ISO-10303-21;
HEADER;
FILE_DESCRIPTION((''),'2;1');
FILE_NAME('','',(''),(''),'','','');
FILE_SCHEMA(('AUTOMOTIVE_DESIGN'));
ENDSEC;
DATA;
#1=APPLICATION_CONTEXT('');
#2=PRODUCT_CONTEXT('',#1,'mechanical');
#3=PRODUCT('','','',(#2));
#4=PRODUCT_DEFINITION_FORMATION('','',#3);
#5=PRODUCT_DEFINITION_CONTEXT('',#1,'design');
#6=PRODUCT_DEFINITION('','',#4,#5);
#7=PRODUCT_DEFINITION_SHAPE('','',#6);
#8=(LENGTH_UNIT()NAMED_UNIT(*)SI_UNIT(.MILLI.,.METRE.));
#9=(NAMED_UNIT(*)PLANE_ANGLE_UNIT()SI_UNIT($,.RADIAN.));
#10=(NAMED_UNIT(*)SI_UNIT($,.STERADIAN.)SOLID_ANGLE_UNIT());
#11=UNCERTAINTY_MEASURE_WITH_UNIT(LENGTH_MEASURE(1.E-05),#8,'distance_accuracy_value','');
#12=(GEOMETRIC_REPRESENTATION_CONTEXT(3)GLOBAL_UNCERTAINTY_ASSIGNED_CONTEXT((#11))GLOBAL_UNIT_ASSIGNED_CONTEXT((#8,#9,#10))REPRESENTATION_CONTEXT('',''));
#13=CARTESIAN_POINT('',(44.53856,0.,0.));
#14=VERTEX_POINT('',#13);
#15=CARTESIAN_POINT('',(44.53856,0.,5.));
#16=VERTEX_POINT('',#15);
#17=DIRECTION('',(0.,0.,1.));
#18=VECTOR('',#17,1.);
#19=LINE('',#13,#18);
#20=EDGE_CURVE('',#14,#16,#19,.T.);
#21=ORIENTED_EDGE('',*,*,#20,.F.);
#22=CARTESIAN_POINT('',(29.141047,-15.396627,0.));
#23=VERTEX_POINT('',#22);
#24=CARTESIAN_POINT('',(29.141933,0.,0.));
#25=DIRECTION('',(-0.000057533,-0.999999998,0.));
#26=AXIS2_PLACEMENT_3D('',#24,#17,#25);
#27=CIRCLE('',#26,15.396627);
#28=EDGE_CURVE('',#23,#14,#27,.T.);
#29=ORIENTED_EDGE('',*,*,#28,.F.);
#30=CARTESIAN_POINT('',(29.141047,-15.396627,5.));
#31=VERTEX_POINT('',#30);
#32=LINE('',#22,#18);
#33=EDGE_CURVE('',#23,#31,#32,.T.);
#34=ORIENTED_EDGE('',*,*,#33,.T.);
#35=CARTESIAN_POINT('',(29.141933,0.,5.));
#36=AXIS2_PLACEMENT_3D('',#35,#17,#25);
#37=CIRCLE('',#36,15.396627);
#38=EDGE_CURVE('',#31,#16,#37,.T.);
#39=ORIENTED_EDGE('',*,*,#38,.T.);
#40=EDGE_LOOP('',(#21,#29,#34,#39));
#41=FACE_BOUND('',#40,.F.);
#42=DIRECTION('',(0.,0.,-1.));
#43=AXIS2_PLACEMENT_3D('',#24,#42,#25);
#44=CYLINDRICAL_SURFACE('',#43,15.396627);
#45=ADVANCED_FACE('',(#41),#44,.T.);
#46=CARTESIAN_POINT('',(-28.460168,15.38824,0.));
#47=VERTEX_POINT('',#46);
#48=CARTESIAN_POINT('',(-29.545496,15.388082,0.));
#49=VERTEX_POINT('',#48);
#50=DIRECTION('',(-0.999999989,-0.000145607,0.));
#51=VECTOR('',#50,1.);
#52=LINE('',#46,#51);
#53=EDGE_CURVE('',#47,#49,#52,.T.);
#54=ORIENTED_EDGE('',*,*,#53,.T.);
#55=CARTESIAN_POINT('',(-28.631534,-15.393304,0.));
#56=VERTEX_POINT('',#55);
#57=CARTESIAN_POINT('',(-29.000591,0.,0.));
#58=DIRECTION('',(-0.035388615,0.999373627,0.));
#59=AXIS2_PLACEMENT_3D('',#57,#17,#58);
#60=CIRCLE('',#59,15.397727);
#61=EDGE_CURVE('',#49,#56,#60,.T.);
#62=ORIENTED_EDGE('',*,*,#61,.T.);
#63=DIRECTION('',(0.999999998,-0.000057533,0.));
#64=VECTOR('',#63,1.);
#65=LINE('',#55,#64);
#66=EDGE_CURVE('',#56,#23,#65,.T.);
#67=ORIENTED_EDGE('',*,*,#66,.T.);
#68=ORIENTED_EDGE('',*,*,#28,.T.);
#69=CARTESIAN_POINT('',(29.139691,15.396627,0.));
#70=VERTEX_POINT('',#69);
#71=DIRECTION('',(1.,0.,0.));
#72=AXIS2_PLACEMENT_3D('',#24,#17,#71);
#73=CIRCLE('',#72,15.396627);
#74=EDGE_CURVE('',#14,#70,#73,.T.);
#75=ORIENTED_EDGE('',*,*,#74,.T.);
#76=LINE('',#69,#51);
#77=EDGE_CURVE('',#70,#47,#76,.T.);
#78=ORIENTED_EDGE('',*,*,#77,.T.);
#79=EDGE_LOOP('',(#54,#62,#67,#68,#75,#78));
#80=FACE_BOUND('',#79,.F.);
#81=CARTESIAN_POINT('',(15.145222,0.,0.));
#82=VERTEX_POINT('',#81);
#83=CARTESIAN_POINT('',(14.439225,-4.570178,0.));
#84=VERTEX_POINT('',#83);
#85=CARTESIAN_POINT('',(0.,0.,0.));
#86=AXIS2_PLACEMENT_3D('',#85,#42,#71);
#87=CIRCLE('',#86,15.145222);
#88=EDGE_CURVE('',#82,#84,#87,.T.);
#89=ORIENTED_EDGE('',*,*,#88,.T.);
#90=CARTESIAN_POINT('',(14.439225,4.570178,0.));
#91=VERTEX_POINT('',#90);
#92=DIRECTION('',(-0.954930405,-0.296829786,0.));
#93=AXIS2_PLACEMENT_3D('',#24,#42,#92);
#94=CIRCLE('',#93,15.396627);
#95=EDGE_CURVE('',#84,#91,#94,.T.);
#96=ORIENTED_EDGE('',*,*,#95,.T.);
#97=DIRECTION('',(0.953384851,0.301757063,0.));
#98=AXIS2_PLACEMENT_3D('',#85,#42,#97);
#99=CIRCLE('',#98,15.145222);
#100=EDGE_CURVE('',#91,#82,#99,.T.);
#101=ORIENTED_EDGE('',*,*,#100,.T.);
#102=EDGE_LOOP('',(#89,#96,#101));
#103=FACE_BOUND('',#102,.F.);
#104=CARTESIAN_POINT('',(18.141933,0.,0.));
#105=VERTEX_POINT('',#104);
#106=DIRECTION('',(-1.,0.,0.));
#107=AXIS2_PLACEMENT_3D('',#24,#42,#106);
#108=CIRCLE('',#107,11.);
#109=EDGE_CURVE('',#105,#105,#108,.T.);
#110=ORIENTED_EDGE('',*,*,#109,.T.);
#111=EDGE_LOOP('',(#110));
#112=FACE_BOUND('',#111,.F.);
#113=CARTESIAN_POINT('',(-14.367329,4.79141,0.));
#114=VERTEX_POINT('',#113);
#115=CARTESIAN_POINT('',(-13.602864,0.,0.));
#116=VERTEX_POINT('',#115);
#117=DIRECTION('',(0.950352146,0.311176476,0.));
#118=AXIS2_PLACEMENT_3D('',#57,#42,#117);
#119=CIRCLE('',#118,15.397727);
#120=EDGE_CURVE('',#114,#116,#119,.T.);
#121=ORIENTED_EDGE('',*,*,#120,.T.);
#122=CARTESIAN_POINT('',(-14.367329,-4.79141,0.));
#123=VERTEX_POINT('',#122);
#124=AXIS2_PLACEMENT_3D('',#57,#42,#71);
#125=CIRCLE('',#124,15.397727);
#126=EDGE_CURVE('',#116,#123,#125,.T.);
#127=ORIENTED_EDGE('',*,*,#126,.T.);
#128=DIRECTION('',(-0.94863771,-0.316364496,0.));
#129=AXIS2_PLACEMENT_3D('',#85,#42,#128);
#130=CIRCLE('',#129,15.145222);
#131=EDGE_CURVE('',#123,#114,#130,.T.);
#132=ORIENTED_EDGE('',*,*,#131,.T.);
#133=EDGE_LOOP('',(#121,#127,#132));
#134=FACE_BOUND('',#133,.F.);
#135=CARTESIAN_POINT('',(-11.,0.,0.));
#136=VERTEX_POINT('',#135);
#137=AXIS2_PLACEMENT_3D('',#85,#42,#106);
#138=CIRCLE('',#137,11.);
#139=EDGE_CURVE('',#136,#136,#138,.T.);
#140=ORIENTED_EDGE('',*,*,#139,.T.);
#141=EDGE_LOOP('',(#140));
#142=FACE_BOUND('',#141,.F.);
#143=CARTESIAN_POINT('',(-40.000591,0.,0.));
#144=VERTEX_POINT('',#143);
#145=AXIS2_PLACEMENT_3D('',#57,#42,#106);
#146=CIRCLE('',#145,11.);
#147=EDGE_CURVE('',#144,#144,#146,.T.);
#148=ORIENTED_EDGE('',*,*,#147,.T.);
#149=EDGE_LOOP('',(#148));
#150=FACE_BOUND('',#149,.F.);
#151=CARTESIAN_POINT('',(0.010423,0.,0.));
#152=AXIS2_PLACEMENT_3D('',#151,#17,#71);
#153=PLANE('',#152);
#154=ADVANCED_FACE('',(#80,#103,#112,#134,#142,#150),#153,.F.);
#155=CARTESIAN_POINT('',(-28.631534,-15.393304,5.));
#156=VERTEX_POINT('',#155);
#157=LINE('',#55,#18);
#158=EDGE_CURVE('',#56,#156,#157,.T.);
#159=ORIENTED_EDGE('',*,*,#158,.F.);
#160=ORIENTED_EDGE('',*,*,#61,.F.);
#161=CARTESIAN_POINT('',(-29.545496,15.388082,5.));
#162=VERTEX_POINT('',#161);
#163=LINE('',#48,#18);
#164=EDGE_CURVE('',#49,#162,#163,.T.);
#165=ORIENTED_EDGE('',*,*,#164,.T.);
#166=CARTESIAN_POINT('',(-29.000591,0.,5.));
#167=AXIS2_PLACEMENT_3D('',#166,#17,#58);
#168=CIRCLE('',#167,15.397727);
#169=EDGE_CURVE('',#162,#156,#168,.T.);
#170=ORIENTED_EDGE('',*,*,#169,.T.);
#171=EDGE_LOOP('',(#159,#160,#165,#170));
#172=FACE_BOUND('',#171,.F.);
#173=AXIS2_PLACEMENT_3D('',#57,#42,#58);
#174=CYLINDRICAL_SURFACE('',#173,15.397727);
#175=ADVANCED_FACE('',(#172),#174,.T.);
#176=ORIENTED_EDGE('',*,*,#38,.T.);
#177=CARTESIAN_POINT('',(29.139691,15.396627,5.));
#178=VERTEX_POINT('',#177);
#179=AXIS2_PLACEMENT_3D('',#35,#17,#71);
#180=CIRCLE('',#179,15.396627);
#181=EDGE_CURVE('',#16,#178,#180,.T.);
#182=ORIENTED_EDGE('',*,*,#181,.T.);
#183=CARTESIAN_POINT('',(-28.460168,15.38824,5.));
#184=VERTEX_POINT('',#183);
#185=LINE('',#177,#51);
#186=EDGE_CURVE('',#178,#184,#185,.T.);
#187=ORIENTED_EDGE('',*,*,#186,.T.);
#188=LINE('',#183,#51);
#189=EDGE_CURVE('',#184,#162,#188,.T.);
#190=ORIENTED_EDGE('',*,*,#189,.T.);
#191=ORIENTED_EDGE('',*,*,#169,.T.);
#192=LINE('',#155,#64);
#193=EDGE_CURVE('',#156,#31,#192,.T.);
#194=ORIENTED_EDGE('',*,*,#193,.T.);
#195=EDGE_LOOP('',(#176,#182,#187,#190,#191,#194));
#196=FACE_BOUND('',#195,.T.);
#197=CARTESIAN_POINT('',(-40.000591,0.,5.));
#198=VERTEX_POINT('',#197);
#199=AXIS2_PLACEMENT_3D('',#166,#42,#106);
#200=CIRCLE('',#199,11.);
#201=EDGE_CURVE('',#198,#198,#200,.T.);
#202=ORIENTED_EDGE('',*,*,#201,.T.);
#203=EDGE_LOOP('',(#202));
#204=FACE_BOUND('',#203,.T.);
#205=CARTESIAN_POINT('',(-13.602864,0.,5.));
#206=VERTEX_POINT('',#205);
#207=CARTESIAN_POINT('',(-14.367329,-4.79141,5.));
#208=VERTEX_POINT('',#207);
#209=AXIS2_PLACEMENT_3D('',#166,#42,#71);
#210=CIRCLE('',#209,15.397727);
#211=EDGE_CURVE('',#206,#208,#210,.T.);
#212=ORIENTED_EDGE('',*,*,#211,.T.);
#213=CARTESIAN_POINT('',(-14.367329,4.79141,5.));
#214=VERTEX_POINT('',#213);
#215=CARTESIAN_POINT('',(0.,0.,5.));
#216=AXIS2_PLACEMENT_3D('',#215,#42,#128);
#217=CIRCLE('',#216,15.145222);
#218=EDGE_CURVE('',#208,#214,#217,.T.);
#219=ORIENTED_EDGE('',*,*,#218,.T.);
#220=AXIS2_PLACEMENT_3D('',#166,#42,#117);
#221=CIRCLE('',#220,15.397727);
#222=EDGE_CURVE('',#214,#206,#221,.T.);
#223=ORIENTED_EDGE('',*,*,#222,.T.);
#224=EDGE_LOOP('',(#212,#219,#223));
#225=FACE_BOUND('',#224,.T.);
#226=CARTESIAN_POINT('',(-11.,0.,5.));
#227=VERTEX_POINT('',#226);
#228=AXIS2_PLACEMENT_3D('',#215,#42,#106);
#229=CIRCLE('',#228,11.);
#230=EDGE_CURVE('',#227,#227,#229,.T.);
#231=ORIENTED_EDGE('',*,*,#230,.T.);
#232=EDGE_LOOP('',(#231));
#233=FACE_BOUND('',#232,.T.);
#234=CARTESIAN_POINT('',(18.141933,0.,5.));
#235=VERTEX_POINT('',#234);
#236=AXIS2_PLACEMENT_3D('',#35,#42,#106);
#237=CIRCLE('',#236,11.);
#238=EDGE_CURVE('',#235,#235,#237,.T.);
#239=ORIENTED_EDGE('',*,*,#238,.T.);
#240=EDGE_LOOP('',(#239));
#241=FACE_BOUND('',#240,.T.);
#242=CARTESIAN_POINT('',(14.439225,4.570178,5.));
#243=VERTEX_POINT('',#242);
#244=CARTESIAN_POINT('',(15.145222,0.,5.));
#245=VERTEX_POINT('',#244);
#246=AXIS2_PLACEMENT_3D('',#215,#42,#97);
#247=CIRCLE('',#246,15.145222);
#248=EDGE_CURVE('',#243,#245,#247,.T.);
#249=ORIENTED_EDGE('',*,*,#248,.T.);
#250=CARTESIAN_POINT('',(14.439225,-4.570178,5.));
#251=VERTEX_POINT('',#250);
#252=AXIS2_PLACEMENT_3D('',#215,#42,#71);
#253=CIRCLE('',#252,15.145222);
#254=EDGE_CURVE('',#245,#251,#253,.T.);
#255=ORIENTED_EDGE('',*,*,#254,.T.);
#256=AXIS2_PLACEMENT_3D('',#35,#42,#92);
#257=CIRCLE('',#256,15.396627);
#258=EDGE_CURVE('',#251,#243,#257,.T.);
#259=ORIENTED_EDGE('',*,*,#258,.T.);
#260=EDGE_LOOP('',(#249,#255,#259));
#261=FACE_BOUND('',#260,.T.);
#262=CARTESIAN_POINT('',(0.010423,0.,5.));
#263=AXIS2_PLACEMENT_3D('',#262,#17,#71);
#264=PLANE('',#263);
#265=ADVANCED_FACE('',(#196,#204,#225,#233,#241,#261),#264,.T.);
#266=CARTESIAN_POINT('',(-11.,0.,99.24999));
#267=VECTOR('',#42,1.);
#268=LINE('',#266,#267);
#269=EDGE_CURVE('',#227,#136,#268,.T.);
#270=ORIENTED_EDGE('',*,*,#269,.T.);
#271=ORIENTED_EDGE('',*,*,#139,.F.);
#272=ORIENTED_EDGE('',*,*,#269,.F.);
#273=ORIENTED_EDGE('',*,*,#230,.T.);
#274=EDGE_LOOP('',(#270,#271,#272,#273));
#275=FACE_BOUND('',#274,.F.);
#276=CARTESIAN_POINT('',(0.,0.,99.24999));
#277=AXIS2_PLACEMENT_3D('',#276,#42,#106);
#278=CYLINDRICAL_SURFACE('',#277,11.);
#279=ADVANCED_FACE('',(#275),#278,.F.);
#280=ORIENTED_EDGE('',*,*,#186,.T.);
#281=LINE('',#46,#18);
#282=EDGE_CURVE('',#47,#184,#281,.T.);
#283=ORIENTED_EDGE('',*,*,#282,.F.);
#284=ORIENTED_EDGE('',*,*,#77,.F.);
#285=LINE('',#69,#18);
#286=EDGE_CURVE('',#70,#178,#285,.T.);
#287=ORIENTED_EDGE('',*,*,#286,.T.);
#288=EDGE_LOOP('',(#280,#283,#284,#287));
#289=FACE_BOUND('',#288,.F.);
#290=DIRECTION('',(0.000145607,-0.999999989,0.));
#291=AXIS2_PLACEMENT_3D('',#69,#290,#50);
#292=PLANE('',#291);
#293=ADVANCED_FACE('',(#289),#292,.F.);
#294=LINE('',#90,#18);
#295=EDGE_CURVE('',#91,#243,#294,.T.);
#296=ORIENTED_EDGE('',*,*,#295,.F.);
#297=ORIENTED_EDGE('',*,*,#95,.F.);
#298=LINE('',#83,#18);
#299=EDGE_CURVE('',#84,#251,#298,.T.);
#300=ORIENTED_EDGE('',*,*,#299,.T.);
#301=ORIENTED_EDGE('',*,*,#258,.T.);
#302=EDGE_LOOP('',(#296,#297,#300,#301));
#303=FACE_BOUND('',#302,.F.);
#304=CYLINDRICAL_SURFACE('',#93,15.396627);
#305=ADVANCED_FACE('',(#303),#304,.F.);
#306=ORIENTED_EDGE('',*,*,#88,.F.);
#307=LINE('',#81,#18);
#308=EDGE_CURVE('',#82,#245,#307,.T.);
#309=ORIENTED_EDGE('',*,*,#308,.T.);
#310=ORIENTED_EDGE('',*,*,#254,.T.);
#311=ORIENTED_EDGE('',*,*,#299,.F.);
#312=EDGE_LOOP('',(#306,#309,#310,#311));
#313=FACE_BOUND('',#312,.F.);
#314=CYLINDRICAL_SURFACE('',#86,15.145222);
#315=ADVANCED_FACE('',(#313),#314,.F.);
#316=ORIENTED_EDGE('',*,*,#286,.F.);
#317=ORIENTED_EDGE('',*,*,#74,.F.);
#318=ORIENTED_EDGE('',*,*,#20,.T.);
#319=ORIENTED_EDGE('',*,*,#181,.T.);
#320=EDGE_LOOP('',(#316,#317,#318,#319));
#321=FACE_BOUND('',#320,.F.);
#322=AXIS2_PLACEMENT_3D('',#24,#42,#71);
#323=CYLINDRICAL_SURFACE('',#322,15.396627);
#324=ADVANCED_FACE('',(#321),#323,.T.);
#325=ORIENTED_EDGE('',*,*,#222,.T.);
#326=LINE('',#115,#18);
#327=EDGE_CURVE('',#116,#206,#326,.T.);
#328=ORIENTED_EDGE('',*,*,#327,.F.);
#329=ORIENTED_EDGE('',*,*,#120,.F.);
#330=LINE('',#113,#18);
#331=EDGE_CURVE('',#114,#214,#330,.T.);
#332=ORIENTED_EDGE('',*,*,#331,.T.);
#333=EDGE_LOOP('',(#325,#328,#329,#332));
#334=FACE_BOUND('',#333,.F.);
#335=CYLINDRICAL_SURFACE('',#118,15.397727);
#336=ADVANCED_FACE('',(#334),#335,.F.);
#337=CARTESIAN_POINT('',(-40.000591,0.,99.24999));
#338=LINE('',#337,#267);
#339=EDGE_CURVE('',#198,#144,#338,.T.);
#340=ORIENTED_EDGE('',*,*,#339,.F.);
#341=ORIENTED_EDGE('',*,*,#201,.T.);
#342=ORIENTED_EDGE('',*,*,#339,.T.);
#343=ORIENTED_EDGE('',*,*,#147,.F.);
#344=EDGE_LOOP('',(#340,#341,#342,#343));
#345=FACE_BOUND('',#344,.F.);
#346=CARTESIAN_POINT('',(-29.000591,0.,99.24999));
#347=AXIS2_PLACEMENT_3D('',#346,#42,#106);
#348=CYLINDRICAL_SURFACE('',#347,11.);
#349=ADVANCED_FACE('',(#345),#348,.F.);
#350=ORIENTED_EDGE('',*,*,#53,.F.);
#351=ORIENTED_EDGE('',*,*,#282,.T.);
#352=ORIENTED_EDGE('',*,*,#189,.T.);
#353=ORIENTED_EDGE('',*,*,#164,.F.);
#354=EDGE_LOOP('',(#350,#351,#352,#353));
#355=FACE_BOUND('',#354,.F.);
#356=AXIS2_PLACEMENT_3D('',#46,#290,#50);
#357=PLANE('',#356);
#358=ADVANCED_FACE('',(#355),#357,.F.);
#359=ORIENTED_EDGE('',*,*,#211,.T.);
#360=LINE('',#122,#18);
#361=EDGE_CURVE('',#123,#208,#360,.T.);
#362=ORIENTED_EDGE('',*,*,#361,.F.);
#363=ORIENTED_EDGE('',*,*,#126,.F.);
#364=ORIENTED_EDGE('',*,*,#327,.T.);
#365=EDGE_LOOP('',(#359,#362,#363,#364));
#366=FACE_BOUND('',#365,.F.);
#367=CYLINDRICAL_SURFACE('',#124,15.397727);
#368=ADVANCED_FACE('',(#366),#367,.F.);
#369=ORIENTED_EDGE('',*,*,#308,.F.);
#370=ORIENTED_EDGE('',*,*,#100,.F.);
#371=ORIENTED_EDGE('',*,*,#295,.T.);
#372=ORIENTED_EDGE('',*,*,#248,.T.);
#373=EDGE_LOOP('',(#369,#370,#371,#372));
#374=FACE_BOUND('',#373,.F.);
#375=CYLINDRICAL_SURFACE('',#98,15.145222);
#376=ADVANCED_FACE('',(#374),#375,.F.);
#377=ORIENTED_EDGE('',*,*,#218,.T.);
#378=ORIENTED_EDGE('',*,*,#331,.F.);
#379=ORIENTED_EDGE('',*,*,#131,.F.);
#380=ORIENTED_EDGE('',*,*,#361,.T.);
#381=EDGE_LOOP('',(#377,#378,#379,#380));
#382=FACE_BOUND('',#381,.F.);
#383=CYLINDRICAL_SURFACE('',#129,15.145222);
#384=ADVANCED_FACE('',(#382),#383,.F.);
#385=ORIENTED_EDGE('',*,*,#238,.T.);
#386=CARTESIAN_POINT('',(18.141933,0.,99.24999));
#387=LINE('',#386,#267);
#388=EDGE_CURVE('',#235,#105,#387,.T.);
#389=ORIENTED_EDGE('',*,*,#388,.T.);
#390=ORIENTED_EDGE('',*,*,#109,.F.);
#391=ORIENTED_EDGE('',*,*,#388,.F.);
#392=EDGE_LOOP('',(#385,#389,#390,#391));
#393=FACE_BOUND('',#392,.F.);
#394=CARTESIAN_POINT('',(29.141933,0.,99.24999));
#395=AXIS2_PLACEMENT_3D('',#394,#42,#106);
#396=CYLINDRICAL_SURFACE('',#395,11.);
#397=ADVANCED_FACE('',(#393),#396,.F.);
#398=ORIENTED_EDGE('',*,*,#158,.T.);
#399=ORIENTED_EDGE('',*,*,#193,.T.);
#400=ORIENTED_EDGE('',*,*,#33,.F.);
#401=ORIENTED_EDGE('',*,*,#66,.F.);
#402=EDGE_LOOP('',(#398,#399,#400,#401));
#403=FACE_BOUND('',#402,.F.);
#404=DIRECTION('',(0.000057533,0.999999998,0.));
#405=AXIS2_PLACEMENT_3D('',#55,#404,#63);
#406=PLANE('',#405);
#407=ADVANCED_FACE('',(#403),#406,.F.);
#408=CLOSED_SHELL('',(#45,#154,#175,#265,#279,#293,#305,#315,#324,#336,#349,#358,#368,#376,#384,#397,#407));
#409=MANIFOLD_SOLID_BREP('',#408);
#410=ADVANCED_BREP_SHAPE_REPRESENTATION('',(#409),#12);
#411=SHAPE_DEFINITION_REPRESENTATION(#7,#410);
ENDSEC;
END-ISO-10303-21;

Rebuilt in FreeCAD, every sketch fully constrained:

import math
import FreeCAD as App
import Part
import Sketcher
from FreeCAD import Vector
Q = App.Units.Quantity

doc = App.newDocument("Part")
body = doc.addObject("PartDesign::Body", "Body")

sketch1 = body.newObject("Sketcher::SketchObject", "Sketch")
sketch1.AttachmentSupport = (doc.getObject("XY_Plane"), [""])
sketch1.MapMode = "FlatFace"
sketch1.addGeometry([
    Part.LineSegment(Vector(29.1, 15.4, 0), Vector(-28.5, 15.4, 0)),
    Part.LineSegment(Vector(-28.5, 15.4, 0), Vector(-29.5, 15.4, 0)),
    Part.ArcOfCircle(Part.Circle(Vector(-29, 0, 0), Vector(0, 0, 1), 15.4), math.radians(92), math.radians(271)),
    Part.LineSegment(Vector(-28.6, -15.4, 0), Vector(29.1, -15.4, 0)),
    Part.ArcOfCircle(Part.Circle(Vector(29.1, 0, 0), Vector(0, 0, 1), 15.4), math.radians(-90), math.radians(0)),
    Part.ArcOfCircle(Part.Circle(Vector(29.1, 0, 0), Vector(0, 0, 1), 15.4), math.radians(0), math.radians(90)),
    Part.ArcOfCircle(Part.Circle(Vector(29.1, 0, 0), Vector(0, 0, 1), 15.4), math.radians(163), math.radians(197)),
    Part.ArcOfCircle(Part.Circle(Vector(0, 0, 0), Vector(0, 0, 1), 15.1), math.radians(0), math.radians(17.56)),
    Part.ArcOfCircle(Part.Circle(Vector(0, 0, 0), Vector(0, 0, 1), 15.1), math.radians(-17.56), math.radians(0)),
    Part.ArcOfCircle(Part.Circle(Vector(0, 0, 0), Vector(0, 0, 1), 15.1), math.radians(162), math.radians(198)),
    Part.ArcOfCircle(Part.Circle(Vector(-29, 0, 0), Vector(0, 0, 1), 15.4), math.radians(0), math.radians(18.13)),
    Part.ArcOfCircle(Part.Circle(Vector(-29, 0, 0), Vector(0, 0, 1), 15.4), math.radians(-18.13), math.radians(0)),
], False)
sketch1.addConstraint([
    Sketcher.Constraint("Coincident", 0, 2, 1, 1),
    Sketcher.Constraint("Coincident", 1, 2, 2, 1),
    Sketcher.Constraint("Coincident", 2, 2, 3, 1),
    Sketcher.Constraint("Tangent", 3, 2, 4, 1),
    Sketcher.Constraint("Tangent", 4, 2, 5, 1),
    Sketcher.Constraint("Tangent", 5, 2, 0, 1),
    Sketcher.Constraint("Coincident", 6, 1, 7, 2),
    Sketcher.Constraint("Tangent", 7, 1, 8, 2),
    Sketcher.Constraint("Coincident", 8, 1, 6, 2),
    Sketcher.Constraint("Coincident", 9, 1, 10, 2),
    Sketcher.Constraint("Tangent", 10, 1, 11, 2),
    Sketcher.Constraint("Coincident", 11, 1, 9, 2),
    Sketcher.Constraint("Coincident", 7, 3, -1, 1),
    Sketcher.Constraint("Coincident", 9, 3, -1, 1),
    Sketcher.Constraint("Coincident", 6, 3, 4, 3),
    Sketcher.Constraint("Coincident", 10, 3, 2, 3),
    Sketcher.Constraint("Equal", 4, 5),
    Sketcher.Constraint("Equal", 5, 6),
    Sketcher.Constraint("Equal", 7, 8),
    Sketcher.Constraint("Equal", 8, 9),
    Sketcher.Constraint("Equal", 2, 10),
    Sketcher.Constraint("Equal", 10, 11),
    Sketcher.Constraint("PointOnObject", 2, 3, -1),
    Sketcher.Constraint("PointOnObject", 4, 3, -1),
    Sketcher.Constraint("PointOnObject", 4, 2, -1),
    Sketcher.Constraint("PointOnObject", 7, 1, -1),
    Sketcher.Constraint("PointOnObject", 10, 1, -1),
    Sketcher.Constraint("Parallel", 0, 1),
    Sketcher.Constraint("Radius", 7, Q("15.145222 mm")),
    Sketcher.Constraint("Radius", 2, Q("15.397727 mm")),
    Sketcher.Constraint("Radius", 4, Q("15.396627 mm")),
    Sketcher.Constraint("Distance", 0, Q("57.59986 mm")),
    Sketcher.Constraint("Distance", 3, Q("57.772581 mm")),
    Sketcher.Constraint("DistanceX", 2, 3, -1, 1, Q("29.000591 mm")),
    Sketcher.Constraint("DistanceX", 0, 2, -1, 1, Q("28.460168 mm")),
    Sketcher.Constraint("DistanceY", -1, 1, 0, 2, Q("15.38824 mm")),
])
pad1 = body.newObject("PartDesign::Pad", "Pad")
pad1.Profile = sketch1
pad1.Length = 5

sketch2 = body.newObject("Sketcher::SketchObject", "Sketch001")
sketch2.AttachmentSupport = (doc.getObject("XY_Plane"), [""])
sketch2.MapMode = "FlatFace"
sketch2.AttachmentOffset = App.Placement(Vector(0, 0, 5), App.Rotation())
sketch2.addGeometry(Part.Circle(Vector(-29, 0, 0), Vector(0, 0, 1), 11), False)
sketch2.addConstraint([
    Sketcher.Constraint("PointOnObject", 0, 3, -1),
    Sketcher.Constraint("Diameter", 0, Q("22 mm")),
    Sketcher.Constraint("DistanceX", 0, 3, -1, 1, Q("29.000591 mm")),
])
doc.recompute()
hole = body.newObject("PartDesign::Hole", "Hole")
hole.Profile = sketch2
hole.ThreadType = "None"
hole.Diameter = 22
hole.DepthType = "ThroughAll"

sketch3 = body.newObject("Sketcher::SketchObject", "Sketch002")
sketch3.AttachmentSupport = (doc.getObject("XY_Plane"), [""])
sketch3.MapMode = "FlatFace"
sketch3.AttachmentOffset = App.Placement(Vector(0, 0, 5), App.Rotation())
sketch3.addGeometry(Part.Circle(Vector(0, 0, 0), Vector(0, 0, 1), 11), False)
sketch3.addConstraint([
    Sketcher.Constraint("Coincident", 0, 3, -1, 1),
    Sketcher.Constraint("Diameter", 0, Q("22 mm")),
])
doc.recompute()
hole2 = body.newObject("PartDesign::Hole", "Hole001")
hole2.Profile = sketch3
hole2.ThreadType = "None"
hole2.Diameter = 22
hole2.DepthType = "ThroughAll"

sketch4 = body.newObject("Sketcher::SketchObject", "Sketch003")
sketch4.AttachmentSupport = (doc.getObject("XY_Plane"), [""])
sketch4.MapMode = "FlatFace"
sketch4.AttachmentOffset = App.Placement(Vector(0, 0, 5), App.Rotation())
sketch4.addGeometry(Part.Circle(Vector(29, 0, 0), Vector(0, 0, 1), 11), False)
sketch4.addConstraint([
    Sketcher.Constraint("PointOnObject", 0, 3, -1),
    Sketcher.Constraint("Diameter", 0, Q("22 mm")),
    Sketcher.Constraint("DistanceX", -1, 1, 0, 3, Q("29.141933 mm")),
])
doc.recompute()
hole3 = body.newObject("PartDesign::Hole", "Hole002")
hole3.Profile = sketch4
hole3.ThreadType = "None"
hole3.Diameter = 22
hole3.DepthType = "ThroughAll"

doc.recompute()
